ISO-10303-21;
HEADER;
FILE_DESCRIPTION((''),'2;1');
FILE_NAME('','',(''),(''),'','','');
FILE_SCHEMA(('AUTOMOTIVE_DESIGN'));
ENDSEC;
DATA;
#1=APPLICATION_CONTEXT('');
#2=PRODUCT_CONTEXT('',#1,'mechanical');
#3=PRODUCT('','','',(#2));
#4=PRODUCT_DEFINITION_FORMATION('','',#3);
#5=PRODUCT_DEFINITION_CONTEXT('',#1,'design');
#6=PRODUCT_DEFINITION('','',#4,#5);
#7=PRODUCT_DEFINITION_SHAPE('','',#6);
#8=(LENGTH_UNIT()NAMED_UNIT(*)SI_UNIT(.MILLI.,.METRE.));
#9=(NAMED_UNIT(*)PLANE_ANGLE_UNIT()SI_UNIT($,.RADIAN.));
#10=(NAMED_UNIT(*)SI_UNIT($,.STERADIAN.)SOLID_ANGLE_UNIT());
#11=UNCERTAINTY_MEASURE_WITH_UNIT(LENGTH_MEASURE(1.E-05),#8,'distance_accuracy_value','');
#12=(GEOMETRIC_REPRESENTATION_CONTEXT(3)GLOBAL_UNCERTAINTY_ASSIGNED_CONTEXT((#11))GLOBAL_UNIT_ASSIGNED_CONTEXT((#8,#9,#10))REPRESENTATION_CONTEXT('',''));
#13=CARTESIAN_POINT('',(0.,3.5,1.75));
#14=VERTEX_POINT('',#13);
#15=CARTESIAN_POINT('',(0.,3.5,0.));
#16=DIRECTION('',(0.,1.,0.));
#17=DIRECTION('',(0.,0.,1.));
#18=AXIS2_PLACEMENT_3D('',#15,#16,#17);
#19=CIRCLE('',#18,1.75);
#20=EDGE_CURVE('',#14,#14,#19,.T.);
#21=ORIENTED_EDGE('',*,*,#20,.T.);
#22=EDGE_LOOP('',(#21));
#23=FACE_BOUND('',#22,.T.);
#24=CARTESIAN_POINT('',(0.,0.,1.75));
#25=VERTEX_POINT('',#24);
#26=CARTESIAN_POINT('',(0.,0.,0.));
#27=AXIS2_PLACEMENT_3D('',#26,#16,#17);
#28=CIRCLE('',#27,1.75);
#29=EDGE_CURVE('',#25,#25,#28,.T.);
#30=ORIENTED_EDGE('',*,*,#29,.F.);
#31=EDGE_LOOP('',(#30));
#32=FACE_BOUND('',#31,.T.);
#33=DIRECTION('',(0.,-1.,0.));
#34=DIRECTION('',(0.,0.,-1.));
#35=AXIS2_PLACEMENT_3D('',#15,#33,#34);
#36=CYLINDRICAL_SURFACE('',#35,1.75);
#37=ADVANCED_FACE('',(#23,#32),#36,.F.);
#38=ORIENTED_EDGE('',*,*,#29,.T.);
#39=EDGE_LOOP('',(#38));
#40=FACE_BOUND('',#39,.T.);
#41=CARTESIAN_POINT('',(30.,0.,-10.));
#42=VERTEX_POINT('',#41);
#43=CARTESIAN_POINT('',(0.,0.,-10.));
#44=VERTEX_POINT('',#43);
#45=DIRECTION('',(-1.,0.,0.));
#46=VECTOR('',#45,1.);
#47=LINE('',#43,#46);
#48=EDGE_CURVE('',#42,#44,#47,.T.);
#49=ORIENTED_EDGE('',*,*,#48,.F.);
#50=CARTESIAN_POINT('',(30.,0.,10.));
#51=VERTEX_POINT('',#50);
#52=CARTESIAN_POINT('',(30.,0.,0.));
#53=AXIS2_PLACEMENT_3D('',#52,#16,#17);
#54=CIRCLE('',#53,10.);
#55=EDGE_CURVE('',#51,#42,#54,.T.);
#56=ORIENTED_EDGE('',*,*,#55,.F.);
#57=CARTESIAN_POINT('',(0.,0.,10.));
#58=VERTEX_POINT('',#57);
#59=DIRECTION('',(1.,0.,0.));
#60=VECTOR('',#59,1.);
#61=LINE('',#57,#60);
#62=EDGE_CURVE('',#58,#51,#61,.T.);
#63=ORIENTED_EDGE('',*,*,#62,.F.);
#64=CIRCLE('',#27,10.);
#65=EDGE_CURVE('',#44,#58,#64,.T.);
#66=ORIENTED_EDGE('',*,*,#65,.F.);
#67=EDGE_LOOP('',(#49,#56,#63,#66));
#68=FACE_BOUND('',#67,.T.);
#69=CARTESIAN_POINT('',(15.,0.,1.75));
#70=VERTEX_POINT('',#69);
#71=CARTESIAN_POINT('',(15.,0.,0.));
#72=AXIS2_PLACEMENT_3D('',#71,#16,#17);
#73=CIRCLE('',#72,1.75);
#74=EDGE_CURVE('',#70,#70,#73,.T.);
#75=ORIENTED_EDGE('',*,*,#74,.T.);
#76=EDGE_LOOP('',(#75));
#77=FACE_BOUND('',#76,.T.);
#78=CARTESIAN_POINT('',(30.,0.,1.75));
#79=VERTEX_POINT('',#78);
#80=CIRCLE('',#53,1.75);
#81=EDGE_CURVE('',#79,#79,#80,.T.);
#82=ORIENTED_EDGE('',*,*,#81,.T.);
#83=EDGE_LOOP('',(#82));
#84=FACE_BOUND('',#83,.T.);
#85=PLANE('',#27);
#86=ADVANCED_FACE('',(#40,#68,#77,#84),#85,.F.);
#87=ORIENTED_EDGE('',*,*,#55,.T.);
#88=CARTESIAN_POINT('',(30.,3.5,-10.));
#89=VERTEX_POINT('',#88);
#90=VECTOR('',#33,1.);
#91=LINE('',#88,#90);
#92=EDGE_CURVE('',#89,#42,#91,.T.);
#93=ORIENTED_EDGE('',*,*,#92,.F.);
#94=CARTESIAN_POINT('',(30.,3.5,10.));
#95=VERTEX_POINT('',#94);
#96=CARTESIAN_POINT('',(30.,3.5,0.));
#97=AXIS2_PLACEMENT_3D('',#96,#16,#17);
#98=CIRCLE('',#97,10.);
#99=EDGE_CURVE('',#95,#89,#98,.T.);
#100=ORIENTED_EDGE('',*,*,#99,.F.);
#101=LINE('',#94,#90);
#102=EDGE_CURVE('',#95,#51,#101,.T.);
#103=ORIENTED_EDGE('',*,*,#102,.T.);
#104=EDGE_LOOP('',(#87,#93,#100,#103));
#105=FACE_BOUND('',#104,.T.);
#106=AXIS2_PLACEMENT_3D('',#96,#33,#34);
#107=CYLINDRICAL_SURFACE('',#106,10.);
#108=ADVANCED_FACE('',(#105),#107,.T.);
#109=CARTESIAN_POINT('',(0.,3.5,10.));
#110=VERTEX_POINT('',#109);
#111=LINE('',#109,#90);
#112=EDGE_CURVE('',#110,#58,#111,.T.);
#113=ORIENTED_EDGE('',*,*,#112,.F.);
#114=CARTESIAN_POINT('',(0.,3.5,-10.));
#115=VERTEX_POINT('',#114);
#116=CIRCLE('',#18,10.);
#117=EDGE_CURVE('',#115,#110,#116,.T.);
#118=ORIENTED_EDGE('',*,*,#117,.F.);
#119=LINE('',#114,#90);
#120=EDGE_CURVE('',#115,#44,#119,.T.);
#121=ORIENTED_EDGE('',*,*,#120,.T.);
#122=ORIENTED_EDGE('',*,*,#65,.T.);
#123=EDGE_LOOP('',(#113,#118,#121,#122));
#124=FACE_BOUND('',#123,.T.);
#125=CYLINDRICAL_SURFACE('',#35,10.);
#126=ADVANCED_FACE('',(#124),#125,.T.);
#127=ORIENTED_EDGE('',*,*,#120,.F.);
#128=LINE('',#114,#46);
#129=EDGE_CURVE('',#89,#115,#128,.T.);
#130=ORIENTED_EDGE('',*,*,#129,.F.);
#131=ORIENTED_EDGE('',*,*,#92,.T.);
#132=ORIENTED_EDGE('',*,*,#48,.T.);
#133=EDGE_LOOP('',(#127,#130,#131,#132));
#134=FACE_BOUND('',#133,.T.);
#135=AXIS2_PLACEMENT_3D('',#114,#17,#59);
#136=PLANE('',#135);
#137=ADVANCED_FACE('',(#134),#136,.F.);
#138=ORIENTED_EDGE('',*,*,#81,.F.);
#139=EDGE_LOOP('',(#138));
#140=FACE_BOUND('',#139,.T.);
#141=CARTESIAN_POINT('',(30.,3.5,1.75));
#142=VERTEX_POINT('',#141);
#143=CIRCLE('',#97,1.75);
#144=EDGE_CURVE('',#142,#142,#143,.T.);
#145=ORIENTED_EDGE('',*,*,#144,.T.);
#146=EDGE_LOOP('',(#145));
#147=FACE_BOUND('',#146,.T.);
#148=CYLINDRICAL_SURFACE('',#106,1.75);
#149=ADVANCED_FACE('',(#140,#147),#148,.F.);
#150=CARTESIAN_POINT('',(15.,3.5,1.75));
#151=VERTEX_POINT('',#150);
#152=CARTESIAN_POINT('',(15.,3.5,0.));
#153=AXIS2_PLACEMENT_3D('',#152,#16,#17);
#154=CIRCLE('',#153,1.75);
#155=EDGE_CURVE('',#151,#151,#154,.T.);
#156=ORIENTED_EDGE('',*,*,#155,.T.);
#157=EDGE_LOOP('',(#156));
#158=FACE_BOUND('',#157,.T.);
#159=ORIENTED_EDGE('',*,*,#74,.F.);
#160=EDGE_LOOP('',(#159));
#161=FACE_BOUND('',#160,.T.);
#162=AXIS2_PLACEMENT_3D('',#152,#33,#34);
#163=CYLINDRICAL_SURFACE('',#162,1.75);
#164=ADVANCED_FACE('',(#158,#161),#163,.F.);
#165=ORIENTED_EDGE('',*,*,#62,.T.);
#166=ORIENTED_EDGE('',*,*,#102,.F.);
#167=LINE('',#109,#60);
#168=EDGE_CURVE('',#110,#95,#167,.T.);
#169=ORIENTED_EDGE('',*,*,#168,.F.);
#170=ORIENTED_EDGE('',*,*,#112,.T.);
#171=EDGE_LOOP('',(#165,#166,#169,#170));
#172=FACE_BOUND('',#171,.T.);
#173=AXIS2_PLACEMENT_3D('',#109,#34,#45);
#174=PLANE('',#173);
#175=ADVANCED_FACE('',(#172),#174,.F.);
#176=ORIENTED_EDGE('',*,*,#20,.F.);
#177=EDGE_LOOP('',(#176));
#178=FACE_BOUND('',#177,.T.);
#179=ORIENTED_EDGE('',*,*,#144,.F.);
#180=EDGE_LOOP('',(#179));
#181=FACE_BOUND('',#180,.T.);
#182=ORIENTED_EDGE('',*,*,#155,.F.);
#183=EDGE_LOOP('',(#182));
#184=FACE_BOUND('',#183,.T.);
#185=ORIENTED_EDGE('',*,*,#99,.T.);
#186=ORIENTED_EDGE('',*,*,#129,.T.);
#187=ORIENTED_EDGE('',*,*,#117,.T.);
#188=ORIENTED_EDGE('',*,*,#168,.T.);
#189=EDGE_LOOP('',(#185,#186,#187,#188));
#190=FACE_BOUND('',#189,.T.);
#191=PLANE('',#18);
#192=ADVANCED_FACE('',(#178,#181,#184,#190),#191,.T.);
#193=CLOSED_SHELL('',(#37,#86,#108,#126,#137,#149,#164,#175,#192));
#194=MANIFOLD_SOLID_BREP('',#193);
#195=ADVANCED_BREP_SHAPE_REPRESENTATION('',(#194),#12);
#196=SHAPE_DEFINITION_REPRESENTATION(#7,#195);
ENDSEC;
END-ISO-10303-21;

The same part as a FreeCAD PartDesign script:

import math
import FreeCAD as App
import Part
import Sketcher

V = App.Vector

doc = App.newDocument("Part")
params = doc.addObject("Spreadsheet::Sheet", "Params")
for row, (alias, value) in enumerate([
    ("sketch1_radius", "10 mm"),
    ("sketch1_diameter", "3.5 mm"),
    ("sketch1_width", "30 mm"),
    ("pad1_length", "3.5 mm"),
], start=1):
    params.set(f"A{row}", alias)
    params.set(f"B{row}", "=" + value)
    params.setAlias(f"B{row}", alias)

body = doc.addObject("PartDesign::Body", "Body")

# Sketch on XZ plane
sketch1 = body.newObject("Sketcher::SketchObject", "Sketch")
sketch1.AttachmentSupport = (doc.getObject("XZ_Plane"), [""])
sketch1.MapMode = "FlatFace"
sketch1.addGeometry([
    Part.LineSegment(V(30, -10, 0), V(0, -10, 0)),  # 0
    Part.ArcOfCircle(Part.Circle(V(0, 0, 0), V(0, 0, 1), 10), math.radians(90), math.radians(270)),  # 1
    Part.LineSegment(V(0, 10, 0), V(30, 10, 0)),  # 2
    Part.ArcOfCircle(Part.Circle(V(30, 0, 0), V(0, 0, 1), 10), math.radians(-90), math.radians(90)),  # 3
    Part.Circle(V(30, 0, 0), V(0, 0, 1), 1.8),  # 4
    Part.Circle(V(15, 0, 0), V(0, 0, 1), 1.8),  # 5
    Part.Circle(V(0, 0, 0), V(0, 0, 1), 1.8),  # 6
], False)
sketch1.addConstraint([
    Sketcher.Constraint("Tangent", 0, 2, 1, 2),
    Sketcher.Constraint("Tangent", 1, 1, 2, 1),
    Sketcher.Constraint("Tangent", 2, 2, 3, 2),
    Sketcher.Constraint("Tangent", 3, 1, 0, 1),
    Sketcher.Constraint("Horizontal", 0),
    Sketcher.Constraint("Horizontal", 2),
    Sketcher.Constraint("Coincident", 1, 3, -1, 1),
    Sketcher.Constraint("Coincident", 6, 3, -1, 1),
    Sketcher.Constraint("Coincident", 4, 3, 3, 3),
    Sketcher.Constraint("Equal", 4, 5),
    Sketcher.Constraint("Equal", 5, 6),
    Sketcher.Constraint("PointOnObject", 5, 3, -1),
    Sketcher.Constraint("Radius", 1, 10.0),
    Sketcher.Constraint("Diameter", 4, 3.5),
    Sketcher.Constraint("DistanceX", 0, 2, 0, 1, 30.0),
    Sketcher.Constraint("DistanceX", -1, 1, 5, 3, 15.0),
])
sketch1.setExpression("Constraints[12]", "Params.sketch1_radius")
sketch1.setExpression("Constraints[13]", "Params.sketch1_diameter")
sketch1.setExpression("Constraints[14]", "Params.sketch1_width")
pad1 = body.newObject("PartDesign::Pad", "Pad")
pad1.Profile = sketch1
pad1.setExpression("Length", "Params.pad1_length")
pad1.Reversed = True

doc.recompute()
